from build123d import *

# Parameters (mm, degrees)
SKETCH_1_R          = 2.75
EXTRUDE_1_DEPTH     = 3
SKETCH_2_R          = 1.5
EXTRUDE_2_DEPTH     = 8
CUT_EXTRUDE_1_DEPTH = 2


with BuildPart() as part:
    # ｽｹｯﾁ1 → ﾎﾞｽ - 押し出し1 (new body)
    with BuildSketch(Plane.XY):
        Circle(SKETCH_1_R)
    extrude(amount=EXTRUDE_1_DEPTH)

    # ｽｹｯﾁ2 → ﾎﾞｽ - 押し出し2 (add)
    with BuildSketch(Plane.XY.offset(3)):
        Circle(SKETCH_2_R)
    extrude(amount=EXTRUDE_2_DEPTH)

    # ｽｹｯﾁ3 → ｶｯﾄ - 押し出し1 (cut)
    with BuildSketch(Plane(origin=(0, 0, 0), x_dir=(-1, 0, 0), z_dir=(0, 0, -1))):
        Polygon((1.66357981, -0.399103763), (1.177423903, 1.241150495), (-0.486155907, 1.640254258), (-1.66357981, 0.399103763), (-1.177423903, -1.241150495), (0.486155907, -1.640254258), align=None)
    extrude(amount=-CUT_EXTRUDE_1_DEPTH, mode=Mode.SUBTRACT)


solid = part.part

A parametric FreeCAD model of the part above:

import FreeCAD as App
import Part
import Sketcher

V = App.Vector
Q = App.Units.Quantity


def add_polygon(sketch, points):
    """Adds a closed chain of lines whose ends are joined by coincident constraints."""
    first, n = sketch.GeometryCount, len(points)
    for a, b in zip(points, points[1:] + points[:1]):
        sketch.addGeometry(Part.LineSegment(App.Vector(*a, 0), App.Vector(*b, 0)), False)
    for i in range(n):
        sketch.addConstraint(Sketcher.Constraint("Coincident", first + i, 2, first + (i + 1) % n, 1))

doc = App.newDocument("Part")
params = doc.addObject("Spreadsheet::Sheet", "Params")
for row, (alias, value) in enumerate([
    ("sketch1_diameter", "5.5 mm"),
    ("pad1_length", "3 mm"),
    ("sketch2_diameter", "3 mm"),
    ("pad2_length", "8 mm"),
    ("pocket1_length", "2 mm"),
], start=1):
    params.set(f"A{row}", alias)
    params.set(f"B{row}", "=" + value)
    params.setAlias(f"B{row}", alias)

body = doc.addObject("PartDesign::Body", "Body")

# Sketch on XY plane
sketch1 = doc.addObject("Sketcher::SketchObject", "Sketch")
body.addObject(sketch1)
sketch1.AttachmentSupport = (doc.XY_Plane, [""])
sketch1.MapMode = "FlatFace"
sketch1.addGeometry(Part.Circle(V(0, 0, 0), V(0, 0, 1), 2.75), False)
sketch1.addConstraint([
    Sketcher.Constraint("Coincident", 0, 3, -1, 1),
    Sketcher.Constraint("Diameter", 0, Q("5.5 mm")),
])
sketch1.setExpression("Constraints[1]", "Params.sketch1_diameter")
pad1 = doc.addObject("PartDesign::Pad", "Pad")
body.addObject(pad1)
pad1.Profile = sketch1
pad1.setExpression("Length", "Params.pad1_length")

# Sketch on XY plane
sketch2 = doc.addObject("Sketcher::SketchObject", "Sketch001")
body.addObject(sketch2)
sketch2.AttachmentSupport = (doc.XY_Plane, [""])
sketch2.MapMode = "FlatFace"
sketch2.AttachmentOffset = App.Placement(V(0, 0, 3), App.Rotation())
sketch2.addGeometry(Part.Circle(V(0, 0, 0), V(0, 0, 1), 1.5), False)
sketch2.addConstraint([
    Sketcher.Constraint("Coincident", 0, 3, -1, 1),
    Sketcher.Constraint("Diameter", 0, Q("3 mm")),
])
sketch2.setExpression("Constraints[1]", "Params.sketch2_diameter")
pad2 = doc.addObject("PartDesign::Pad", "Pad001")
body.addObject(pad2)
pad2.Profile = sketch2
pad2.setExpression("Length", "Params.pad2_length")

# Sketch on XY plane
sketch3 = doc.addObject("Sketcher::SketchObject", "Sketch002")
body.addObject(sketch3)
sketch3.AttachmentSupport = (doc.XY_Plane, [""])
sketch3.MapMode = "FlatFace"
add_polygon(sketch3, [(-1.66358, -0.399104), (-1.177424, 1.24115), (0.486156, 1.640254), (1.66358, 0.399104), (1.177424, -1.24115), (-0.486156, -1.640254)])  # lines 0-5
sketch3.addConstraint([
    Sketcher.Constraint("Symmetric", 0, 2, 3, 2, -1, 1),
    Sketcher.Constraint("Symmetric", 1, 2, 4, 2, -1, 1),
    Sketcher.Constraint("Symmetric", 2, 2, 5, 2, -1, 1),
    Sketcher.Constraint("Equal", 0, 1),
    Sketcher.Constraint("Equal", 1, 2),
    Sketcher.Constraint("DistanceY", 3, 2, 0, 2, Q("2.482301 mm")),
    Sketcher.Constraint("DistanceX", -1, 1, 2, 2, Q("1.66358 mm")),
    Sketcher.Constraint("DistanceX", 0, 2, 1, 2, Q("1.66358 mm")),
    Sketcher.Constraint("DistanceY", 2, 2, 1, 2, Q("1.24115 mm")),
])
pocket1 = doc.addObject("PartDesign::Pocket", "Pocket")
body.addObject(pocket1)
pocket1.Profile = sketch3
pocket1.setExpression("Length", "Params.pocket1_length")
pocket1.Reversed = True

doc.recompute()
